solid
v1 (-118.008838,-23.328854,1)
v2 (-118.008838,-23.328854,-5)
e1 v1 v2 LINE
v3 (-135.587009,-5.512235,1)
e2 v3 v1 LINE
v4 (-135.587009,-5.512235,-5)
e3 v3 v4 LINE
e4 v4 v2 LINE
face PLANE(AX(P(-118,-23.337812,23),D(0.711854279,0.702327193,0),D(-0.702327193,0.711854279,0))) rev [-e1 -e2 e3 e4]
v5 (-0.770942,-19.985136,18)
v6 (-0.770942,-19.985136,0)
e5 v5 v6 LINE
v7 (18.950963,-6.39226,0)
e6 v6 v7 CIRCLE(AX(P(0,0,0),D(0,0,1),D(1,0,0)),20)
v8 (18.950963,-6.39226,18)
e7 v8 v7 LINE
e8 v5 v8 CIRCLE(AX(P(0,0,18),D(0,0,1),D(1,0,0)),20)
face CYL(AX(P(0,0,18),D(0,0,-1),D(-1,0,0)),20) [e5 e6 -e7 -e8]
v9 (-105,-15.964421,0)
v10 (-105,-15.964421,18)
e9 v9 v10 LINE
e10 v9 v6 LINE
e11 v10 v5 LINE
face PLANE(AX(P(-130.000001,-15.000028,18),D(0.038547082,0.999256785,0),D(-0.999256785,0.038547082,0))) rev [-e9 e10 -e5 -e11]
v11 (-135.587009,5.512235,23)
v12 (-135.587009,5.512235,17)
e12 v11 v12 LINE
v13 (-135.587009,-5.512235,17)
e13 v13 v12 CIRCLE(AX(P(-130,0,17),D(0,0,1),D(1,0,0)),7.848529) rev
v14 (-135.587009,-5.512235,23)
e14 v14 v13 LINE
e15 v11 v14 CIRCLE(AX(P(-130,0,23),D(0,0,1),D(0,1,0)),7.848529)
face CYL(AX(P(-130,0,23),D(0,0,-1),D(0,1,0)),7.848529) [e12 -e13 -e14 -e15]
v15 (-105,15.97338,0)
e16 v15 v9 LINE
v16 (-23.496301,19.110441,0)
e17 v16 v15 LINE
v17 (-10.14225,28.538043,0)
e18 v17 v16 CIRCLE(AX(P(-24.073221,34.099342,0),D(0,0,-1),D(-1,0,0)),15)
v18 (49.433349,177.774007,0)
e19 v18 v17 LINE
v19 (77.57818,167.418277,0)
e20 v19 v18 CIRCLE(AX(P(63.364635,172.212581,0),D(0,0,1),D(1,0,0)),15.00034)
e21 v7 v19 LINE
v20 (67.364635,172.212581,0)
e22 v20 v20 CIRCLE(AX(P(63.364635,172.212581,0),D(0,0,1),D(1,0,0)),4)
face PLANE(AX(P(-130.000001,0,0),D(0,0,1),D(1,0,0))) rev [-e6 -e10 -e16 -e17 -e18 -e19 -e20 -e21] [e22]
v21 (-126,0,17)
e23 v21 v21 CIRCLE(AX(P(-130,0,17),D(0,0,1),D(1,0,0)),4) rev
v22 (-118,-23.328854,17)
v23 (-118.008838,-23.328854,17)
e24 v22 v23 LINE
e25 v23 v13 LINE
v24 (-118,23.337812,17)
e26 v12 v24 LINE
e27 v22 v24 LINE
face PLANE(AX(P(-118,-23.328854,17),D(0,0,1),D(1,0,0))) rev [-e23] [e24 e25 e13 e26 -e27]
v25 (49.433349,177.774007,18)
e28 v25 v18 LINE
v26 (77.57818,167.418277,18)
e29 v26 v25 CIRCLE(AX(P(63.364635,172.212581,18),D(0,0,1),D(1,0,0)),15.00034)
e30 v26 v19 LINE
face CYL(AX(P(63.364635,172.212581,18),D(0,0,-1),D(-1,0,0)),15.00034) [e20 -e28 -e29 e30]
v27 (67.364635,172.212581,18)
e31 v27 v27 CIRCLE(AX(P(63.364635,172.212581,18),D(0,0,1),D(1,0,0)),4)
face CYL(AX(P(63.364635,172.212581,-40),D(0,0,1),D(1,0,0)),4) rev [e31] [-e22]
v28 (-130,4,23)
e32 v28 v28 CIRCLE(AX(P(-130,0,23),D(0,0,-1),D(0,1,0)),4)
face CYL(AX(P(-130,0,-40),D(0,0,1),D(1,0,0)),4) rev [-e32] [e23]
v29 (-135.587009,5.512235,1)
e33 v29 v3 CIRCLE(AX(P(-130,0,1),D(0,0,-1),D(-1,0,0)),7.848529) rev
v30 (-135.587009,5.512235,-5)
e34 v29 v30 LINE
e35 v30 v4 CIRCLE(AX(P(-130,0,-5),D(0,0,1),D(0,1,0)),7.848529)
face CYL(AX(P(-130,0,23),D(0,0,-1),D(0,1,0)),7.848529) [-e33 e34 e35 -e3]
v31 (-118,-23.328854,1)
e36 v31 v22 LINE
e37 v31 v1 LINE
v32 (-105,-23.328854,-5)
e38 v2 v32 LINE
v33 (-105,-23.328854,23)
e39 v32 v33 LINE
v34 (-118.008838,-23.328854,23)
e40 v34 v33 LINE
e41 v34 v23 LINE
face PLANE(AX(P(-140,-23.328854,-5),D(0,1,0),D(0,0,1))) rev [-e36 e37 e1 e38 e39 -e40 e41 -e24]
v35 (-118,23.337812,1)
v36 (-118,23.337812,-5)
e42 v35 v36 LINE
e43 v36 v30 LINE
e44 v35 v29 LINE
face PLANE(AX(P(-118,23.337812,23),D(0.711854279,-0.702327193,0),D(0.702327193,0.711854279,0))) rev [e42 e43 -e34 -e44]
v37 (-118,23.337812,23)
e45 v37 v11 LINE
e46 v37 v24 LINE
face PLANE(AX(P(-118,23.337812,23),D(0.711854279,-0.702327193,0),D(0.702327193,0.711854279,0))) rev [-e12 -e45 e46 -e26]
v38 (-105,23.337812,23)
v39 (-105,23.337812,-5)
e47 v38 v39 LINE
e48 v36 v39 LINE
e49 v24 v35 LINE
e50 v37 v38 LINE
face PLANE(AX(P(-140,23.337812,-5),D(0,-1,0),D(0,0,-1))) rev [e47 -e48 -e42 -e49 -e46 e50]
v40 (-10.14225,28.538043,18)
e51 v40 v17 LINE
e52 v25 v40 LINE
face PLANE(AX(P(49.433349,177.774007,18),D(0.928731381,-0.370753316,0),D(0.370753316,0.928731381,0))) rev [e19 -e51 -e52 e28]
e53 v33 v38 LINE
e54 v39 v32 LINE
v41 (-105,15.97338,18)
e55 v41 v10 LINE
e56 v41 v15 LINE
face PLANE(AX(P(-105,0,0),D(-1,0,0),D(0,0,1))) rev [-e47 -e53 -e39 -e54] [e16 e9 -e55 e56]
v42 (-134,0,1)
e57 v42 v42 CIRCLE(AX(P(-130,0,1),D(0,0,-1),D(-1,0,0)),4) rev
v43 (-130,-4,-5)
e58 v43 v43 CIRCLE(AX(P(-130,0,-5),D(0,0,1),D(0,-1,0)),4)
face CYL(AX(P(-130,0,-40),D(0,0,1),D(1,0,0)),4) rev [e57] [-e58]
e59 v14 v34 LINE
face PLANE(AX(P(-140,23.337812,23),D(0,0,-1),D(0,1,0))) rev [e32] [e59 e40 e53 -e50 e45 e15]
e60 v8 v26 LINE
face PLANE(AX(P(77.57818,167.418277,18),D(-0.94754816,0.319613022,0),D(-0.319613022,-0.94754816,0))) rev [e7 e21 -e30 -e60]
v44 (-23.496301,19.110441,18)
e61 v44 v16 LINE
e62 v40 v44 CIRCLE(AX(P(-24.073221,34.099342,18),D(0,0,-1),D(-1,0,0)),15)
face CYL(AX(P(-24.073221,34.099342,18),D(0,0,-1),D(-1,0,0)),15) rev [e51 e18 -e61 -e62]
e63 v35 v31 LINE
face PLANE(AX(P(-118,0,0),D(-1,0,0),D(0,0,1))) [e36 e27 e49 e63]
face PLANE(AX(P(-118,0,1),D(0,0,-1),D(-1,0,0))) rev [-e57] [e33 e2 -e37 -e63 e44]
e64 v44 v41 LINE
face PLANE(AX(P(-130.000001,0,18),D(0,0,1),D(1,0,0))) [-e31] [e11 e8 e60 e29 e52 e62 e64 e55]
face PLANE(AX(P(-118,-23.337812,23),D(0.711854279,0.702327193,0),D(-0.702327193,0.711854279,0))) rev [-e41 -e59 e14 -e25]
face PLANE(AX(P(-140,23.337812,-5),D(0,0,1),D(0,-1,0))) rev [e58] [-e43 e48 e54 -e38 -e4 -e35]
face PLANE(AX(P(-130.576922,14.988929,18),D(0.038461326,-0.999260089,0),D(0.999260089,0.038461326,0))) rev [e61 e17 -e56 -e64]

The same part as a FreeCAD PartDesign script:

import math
import FreeCAD as App
import Part
import Sketcher
Q = App.Units.Quantity


def add_polygon(sketch, points):
    """Adds a closed chain of lines whose ends are joined by coincident constraints."""
    first, n = sketch.GeometryCount, len(points)
    for a, b in zip(points, points[1:] + points[:1]):
        sketch.addGeometry(Part.LineSegment(App.Vector(*a, 0), App.Vector(*b, 0)), False)
    for i in range(n):
        sketch.addConstraint(Sketcher.Constraint("Coincident", first + i, 2, first + (i + 1) % n, 1))

doc = App.newDocument("Part")
body = doc.addObject("PartDesign::Body", "Body")

sketch1 = body.newObject("Sketcher::SketchObject", "Sketch")
sketch1.AttachmentSupport = (doc.getObject("XY_Plane"), [""])
sketch1.MapMode = "FlatFace"
sketch1.addGeometry([
    Part.LineSegment(App.Vector(-23.496301, 19.110441, 0), App.Vector(-130.576922, 14.988929, 0)),
    Part.ArcOfCircle(Part.Circle(App.Vector(-130.000001, 0, 0), App.Vector(0, 0, 1), 15.000028), math.radians(92.204215), math.radians(270)),
    Part.LineSegment(App.Vector(-130.000001, -15.000028, 0), App.Vector(-0.770942, -19.985136, 0)),
    Part.ArcOfCircle(Part.Circle(App.Vector(0, 0, 0), App.Vector(0, 0, 1), 20), math.radians(-92.209132), math.radians(-18.639524)),
    Part.LineSegment(App.Vector(18.950963, -6.39226, 0), App.Vector(77.57818, 167.418277, 0)),
    Part.ArcOfCircle(Part.Circle(App.Vector(63.364635, 172.212581, 0), App.Vector(0, 0, 1), 15.00034), math.radians(-18.639524), math.radians(158.237916)),
    Part.LineSegment(App.Vector(49.433349, 177.774007, 0), App.Vector(-10.14225, 28.538043, 0)),
    Part.ArcOfCircle(Part.Circle(App.Vector(-24.073221, 34.099342, 0), App.Vector(0, 0, 1), 15), math.radians(-87.795785), math.radians(-21.762084)),
], False)
sketch1.addConstraint([
    Sketcher.Constraint("Tangent", 0, 2, 1, 1),
    Sketcher.Constraint("Coincident", 1, 2, 2, 1),
    Sketcher.Constraint("Tangent", 2, 2, 3, 1),
    Sketcher.Constraint("Tangent", 3, 2, 4, 1),
    Sketcher.Constraint("Tangent", 4, 2, 5, 1),
    Sketcher.Constraint("Tangent", 5, 2, 6, 1),
    Sketcher.Constraint("Tangent", 6, 2, 7, 2),
    Sketcher.Constraint("Tangent", 7, 1, 0, 1),
    Sketcher.Constraint("Coincident", 3, 3, -1, 1),
    Sketcher.Constraint("PointOnObject", 1, 3, -1),
    Sketcher.Constraint("Radius", 3, Q("20 mm")),
    Sketcher.Constraint("Radius", 7, Q("15 mm")),
    Sketcher.Constraint("DistanceX", 1, 3, -1, 1, Q("130.000001 mm")),
    Sketcher.Constraint("DistanceX", 1, 2, -1, 1, Q("130.000001 mm")),
    Sketcher.Constraint("Radius", 5, Q("15.00034 mm")),
    Sketcher.Constraint("Radius", 1, Q("15.000028 mm")),
    Sketcher.Constraint("DistanceX", 7, 1, -1, 1, Q("23.496301 mm")),
    Sketcher.Constraint("DistanceX", 7, 3, 4, 2, Q("101.651401 mm")),
    Sketcher.Constraint("DistanceY", 6, 2, 7, 3, Q("5.5613 mm")),
    Sketcher.Constraint("DistanceY", 3, 2, 7, 1, Q("25.502702 mm")),
])
pad1 = body.newObject("PartDesign::Pad", "Pad")
pad1.Profile = sketch1
pad1.Length = 18

sketch2 = body.newObject("Sketcher::SketchObject", "Sketch001")
sketch2.AttachmentSupport = (doc.getObject("YZ_Plane"), [""])
sketch2.MapMode = "FlatFace"
sketch2.AttachmentOffset = App.Placement(App.Vector(0, 0, -130), App.Rotation())
add_polygon(sketch2, [(24.775847, -18.392209), (-24.775847, -18.392209), (-24.775847, 18.392209), (24.775847, 18.392209)])
sketch2.addConstraint([
    Sketcher.Constraint("Horizontal", 0),
    Sketcher.Constraint("Vertical", 1),
    Sketcher.Constraint("Horizontal", 2),
    Sketcher.Constraint("Vertical", 3),
    Sketcher.Constraint("Symmetric", 0, 2, 2, 2, -1, 1),
    Sketcher.Constraint("DistanceX", 0, 2, 0, 1, Q("49.551694 mm")),
    Sketcher.Constraint("DistanceY", 1, 1, 1, 2, Q("36.784418 mm")),
])
pocket1 = body.newObject("PartDesign::Pocket", "Pocket")
pocket1.Profile = sketch2
pocket1.Length = 50
pocket1.Midplane = True

sketch3 = body.newObject("Sketcher::SketchObject", "Sketch002")
sketch3.AttachmentSupport = (doc.getObject("YZ_Plane"), [""])
sketch3.MapMode = "FlatFace"
sketch3.AttachmentOffset = App.Placement(App.Vector(0, 0, -105), App.Rotation())
add_polygon(sketch3, [(23.337812, -5), (-23.328854, -5), (-23.328854, 23), (23.337812, 23)])
sketch3.addConstraint([
    Sketcher.Constraint("Horizontal", 0),
    Sketcher.Constraint("Vertical", 1),
    Sketcher.Constraint("Horizontal", 2),
    Sketcher.Constraint("Vertical", 3),
    Sketcher.Constraint("DistanceY", 1, 1, 1, 2, Q("28 mm")),
    Sketcher.Constraint("DistanceY", 0, 2, -1, 1, Q("5 mm")),
    Sketcher.Constraint("DistanceX", 0, 2, 0, 1, Q("46.666667 mm")),
    Sketcher.Constraint("DistanceX", 0, 2, -1, 1, Q("23.328854 mm")),
])
pad2 = body.newObject("PartDesign::Pad", "Pad001")
pad2.Profile = sketch3
pad2.Length = 35
pad2.Reversed = True

sketch4 = body.newObject("Sketcher::SketchObject", "Sketch003")
sketch4.AttachmentSupport = (doc.getObject("XY_Plane"), [""])
sketch4.MapMode = "FlatFace"
sketch4.addGeometry([
    Part.Circle(App.Vector(63.364635, 172.212581, 0), App.Vector(0, 0, 1), 4),
    Part.Circle(App.Vector(-130, 0, 0), App.Vector(0, 0, 1), 4),
], False)
sketch4.addConstraint([
    Sketcher.Constraint("Equal", 0, 1),
    Sketcher.Constraint("PointOnObject", 1, 3, -1),
    Sketcher.Constraint("Diameter", 0, Q("8 mm")),
    Sketcher.Constraint("DistanceX", 1, 3, -1, 1, Q("130 mm")),
    Sketcher.Constraint("DistanceY", -1, 1, 0, 3, Q("172.212581 mm")),
    Sketcher.Constraint("DistanceX", -1, 1, 0, 3, Q("63.364635 mm")),
])
pocket2 = body.newObject("PartDesign::Pocket", "Pocket001")
pocket2.Profile = sketch4
pocket2.Length = 80
pocket2.Midplane = True

sketch5 = body.newObject("Sketcher::SketchObject", "Sketch004")
sketch5.AttachmentSupport = (doc.getObject("YZ_Plane"), [""])
sketch5.MapMode = "FlatFace"
sketch5.AttachmentOffset = App.Placement(App.Vector(0, 0, -140), App.Rotation())
add_polygon(sketch5, [(-23.328854, 1), (-23.328854, 17), (23.337812, 17), (23.337812, 1)])
sketch5.addConstraint([
    Sketcher.Constraint("Vertical", 0),
    Sketcher.Constraint("Horizontal", 1),
    Sketcher.Constraint("Vertical", 2),
    Sketcher.Constraint("Horizontal", 3),
    Sketcher.Constraint("DistanceY", 0, 1, 0, 2, Q("16 mm")),
    Sketcher.Constraint("DistanceY", -1, 1, 0, 2, Q("17 mm")),
    Sketcher.Constraint("DistanceX", 1, 1, 1, 2, Q("46.666667 mm")),
    Sketcher.Constraint("DistanceX", 0, 2, -1, 1, Q("23.328854 mm")),
])
pocket3 = body.newObject("PartDesign::Pocket", "Pocket002")
pocket3.Profile = sketch5
pocket3.Length = 22
pocket3.Reversed = True

sketch6 = body.newObject("Sketcher::SketchObject", "Sketch005")
sketch6.AttachmentSupport = (doc.getObject("XY_Plane"), [""])
sketch6.MapMode = "FlatFace"
sketch6.AttachmentOffset = App.Placement(App.Vector(0, 0, -5), App.Rotation())
sketch6.addGeometry([
    Part.LineSegment(App.Vector(-140, 23.337812, 0), App.Vector(-118, 23.337812, 0)),
    Part.LineSegment(App.Vector(-118, 23.337812, 0), App.Vector(-135.587009, 5.512235, 0)),
    Part.ArcOfCircle(Part.Circle(App.Vector(-130, 0, 0), App.Vector(0, 0, 1), 7.848529), math.radians(135.385985), math.radians(224.614015)),
    Part.LineSegment(App.Vector(-135.587009, -5.512235, 0), App.Vector(-118, -23.337812, 0)),
    Part.LineSegment(App.Vector(-118, -23.337812, 0), App.Vector(-140, -23.328854, 0)),
    Part.LineSegment(App.Vector(-140, -23.328854, 0), App.Vector(-140, 23.337812, 0)),
], False)
sketch6.addConstraint([
    Sketcher.Constraint("Coincident", 0, 2, 1, 1),
    Sketcher.Constraint("Tangent", 1, 2, 2, 1),
    Sketcher.Constraint("Tangent", 2, 2, 3, 1),
    Sketcher.Constraint("Coincident", 3, 2, 4, 1),
    Sketcher.Constraint("Coincident", 4, 2, 5, 1),
    Sketcher.Constraint("Coincident", 5, 2, 0, 1),
    Sketcher.Constraint("Horizontal", 0),
    Sketcher.Constraint("Vertical", 5),
    Sketcher.Constraint("Symmetric", 1, 2, 2, 2, -1),
    Sketcher.Constraint("Vertical", 0, 2, 3, 2),
    Sketcher.Constraint("DistanceX", 0, 1, 0, 2, Q("22 mm")),
    Sketcher.Constraint("DistanceX", 2, 3, -1, 1, Q("130 mm")),
    Sketcher.Constraint("DistanceX", 0, 2, -1, 1, Q("118 mm")),
    Sketcher.Constraint("Radius", 2, Q("7.848529 mm")),
    Sketcher.Constraint("DistanceY", 5, 1, 5, 2, Q("46.666667 mm")),
    Sketcher.Constraint("DistanceX", 1, 2, -1, 1, Q("135.587009 mm")),
])
pocket4 = body.newObject("PartDesign::Pocket", "Pocket003")
pocket4.Profile = sketch6
pocket4.Length = 28
pocket4.Reversed = True

doc.recompute()
